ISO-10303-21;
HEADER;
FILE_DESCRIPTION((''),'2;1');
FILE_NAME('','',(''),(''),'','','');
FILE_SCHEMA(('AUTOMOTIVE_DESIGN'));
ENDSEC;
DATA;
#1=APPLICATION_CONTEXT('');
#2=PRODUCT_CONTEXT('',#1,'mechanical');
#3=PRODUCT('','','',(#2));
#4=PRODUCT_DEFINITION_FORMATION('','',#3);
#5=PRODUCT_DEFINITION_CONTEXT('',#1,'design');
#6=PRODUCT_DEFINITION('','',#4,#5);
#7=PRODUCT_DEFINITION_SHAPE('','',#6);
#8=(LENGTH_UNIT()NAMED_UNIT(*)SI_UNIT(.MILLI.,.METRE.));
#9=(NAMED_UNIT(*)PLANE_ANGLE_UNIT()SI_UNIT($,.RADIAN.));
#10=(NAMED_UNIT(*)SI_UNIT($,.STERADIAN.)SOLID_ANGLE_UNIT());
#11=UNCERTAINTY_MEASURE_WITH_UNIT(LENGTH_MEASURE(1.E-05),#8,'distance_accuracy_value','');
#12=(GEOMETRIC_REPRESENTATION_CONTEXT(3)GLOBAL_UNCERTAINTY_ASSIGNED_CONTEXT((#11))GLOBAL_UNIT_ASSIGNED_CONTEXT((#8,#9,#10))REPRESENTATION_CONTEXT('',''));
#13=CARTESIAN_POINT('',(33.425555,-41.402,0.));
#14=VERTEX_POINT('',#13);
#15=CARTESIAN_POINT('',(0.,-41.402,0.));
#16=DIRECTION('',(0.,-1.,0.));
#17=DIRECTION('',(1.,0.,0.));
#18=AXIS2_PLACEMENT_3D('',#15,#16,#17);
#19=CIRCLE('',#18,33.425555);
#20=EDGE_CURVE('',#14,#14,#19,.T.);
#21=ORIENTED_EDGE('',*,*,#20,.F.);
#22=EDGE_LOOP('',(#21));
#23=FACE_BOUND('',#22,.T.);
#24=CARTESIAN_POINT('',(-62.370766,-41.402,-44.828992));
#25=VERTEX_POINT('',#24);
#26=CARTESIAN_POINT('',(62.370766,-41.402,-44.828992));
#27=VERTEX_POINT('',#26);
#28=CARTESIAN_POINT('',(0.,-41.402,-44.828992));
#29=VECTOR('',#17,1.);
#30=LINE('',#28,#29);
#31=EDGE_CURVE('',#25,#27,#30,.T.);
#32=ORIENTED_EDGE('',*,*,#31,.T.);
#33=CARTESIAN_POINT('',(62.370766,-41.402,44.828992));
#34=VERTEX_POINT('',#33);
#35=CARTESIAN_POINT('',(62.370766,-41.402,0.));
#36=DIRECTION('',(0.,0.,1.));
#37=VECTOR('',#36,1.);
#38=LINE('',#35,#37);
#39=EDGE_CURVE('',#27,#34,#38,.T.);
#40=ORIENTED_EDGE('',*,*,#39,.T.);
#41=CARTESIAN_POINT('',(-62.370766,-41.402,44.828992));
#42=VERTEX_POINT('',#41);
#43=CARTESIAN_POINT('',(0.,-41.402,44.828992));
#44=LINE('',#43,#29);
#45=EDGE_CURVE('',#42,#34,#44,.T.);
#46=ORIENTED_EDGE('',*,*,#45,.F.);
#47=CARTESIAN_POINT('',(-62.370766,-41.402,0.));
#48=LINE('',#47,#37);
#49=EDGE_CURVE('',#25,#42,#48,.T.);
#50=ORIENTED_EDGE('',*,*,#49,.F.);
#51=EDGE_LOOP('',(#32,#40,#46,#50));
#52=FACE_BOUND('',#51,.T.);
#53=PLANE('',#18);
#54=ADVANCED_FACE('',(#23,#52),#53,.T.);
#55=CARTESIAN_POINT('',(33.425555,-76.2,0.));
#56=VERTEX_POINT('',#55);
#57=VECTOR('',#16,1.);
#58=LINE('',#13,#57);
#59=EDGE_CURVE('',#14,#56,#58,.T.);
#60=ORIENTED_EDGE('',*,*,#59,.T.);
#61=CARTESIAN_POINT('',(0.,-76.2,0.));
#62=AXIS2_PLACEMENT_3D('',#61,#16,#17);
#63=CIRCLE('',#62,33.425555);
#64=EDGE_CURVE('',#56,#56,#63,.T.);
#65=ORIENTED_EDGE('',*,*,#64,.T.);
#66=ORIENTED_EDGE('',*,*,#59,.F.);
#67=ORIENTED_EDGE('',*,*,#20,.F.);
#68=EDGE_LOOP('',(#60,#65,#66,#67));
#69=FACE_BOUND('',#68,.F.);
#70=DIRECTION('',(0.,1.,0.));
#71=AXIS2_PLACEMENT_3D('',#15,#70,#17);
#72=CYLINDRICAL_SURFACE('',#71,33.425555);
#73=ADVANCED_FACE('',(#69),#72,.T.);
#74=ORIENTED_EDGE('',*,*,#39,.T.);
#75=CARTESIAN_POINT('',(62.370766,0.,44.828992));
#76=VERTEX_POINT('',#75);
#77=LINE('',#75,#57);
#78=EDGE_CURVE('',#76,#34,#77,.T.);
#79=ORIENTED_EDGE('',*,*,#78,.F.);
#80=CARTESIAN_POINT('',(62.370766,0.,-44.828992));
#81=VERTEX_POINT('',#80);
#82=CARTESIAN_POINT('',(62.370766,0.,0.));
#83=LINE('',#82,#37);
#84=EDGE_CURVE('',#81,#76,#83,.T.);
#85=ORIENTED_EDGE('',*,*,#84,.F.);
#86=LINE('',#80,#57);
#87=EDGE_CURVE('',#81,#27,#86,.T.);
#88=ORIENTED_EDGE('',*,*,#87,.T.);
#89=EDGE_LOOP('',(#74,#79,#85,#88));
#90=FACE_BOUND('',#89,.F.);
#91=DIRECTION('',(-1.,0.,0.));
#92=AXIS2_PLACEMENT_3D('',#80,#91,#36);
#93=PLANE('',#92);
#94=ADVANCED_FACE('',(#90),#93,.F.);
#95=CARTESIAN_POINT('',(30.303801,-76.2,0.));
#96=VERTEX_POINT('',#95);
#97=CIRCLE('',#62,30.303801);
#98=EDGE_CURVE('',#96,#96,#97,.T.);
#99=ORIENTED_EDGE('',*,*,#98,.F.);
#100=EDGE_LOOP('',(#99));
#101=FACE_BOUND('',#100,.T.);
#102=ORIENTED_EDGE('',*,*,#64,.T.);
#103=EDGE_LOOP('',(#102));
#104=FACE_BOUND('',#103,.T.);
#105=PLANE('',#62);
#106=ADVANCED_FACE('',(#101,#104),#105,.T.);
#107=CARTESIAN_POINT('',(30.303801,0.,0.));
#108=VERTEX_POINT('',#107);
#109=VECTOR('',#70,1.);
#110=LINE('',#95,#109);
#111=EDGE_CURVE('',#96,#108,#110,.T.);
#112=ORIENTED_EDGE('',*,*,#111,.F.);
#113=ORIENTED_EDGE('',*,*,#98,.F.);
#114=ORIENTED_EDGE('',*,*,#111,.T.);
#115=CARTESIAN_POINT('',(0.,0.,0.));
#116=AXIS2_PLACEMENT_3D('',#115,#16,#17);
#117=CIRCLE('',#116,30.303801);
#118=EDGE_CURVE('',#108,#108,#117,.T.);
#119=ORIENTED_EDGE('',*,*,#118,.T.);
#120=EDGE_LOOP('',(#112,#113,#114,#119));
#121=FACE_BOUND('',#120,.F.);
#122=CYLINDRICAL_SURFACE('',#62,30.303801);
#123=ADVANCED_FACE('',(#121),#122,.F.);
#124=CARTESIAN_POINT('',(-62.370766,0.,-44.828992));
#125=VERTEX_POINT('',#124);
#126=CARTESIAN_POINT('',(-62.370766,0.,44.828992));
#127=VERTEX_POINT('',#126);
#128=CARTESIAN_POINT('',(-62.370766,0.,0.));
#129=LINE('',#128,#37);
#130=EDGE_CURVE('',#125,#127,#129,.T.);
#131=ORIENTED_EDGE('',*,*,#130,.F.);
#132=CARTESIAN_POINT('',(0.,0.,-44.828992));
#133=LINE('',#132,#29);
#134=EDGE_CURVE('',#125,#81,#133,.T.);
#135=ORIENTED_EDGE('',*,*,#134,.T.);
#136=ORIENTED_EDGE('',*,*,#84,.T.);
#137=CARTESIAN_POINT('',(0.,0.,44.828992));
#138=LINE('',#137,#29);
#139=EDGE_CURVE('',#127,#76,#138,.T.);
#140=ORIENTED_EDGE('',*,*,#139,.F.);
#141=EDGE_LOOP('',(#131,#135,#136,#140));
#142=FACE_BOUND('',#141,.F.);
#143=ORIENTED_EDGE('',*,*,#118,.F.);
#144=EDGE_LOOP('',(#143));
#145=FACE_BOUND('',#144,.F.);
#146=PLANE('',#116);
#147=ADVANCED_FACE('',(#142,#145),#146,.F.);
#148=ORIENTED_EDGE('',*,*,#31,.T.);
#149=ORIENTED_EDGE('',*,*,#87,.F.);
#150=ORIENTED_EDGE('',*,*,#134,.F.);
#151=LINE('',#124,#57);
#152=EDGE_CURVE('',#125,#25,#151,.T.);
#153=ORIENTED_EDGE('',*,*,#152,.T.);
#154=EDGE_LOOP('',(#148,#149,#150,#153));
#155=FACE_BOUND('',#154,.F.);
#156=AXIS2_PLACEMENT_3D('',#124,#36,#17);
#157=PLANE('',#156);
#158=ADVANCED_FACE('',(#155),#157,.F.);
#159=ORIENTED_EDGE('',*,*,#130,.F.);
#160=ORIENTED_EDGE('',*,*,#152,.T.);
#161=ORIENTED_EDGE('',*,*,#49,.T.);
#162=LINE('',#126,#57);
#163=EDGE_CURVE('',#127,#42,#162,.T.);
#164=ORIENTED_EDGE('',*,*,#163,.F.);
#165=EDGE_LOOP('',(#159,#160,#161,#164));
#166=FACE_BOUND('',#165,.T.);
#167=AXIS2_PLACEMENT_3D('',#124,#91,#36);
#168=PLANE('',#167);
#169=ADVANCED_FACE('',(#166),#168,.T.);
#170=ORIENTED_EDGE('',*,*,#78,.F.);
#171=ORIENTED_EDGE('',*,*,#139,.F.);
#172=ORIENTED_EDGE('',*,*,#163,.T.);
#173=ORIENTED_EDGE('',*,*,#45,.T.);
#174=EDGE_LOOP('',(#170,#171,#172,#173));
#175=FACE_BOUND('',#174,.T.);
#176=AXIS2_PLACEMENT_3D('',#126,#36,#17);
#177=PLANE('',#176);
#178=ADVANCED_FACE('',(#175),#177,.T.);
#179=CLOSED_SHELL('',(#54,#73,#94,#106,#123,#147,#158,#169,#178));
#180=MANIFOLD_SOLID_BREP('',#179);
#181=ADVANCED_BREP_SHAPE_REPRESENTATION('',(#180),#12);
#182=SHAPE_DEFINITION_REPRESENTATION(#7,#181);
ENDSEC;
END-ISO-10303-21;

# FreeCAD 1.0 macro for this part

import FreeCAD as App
import Part
import Sketcher
from FreeCAD import Vector

doc = App.newDocument("Part")
params = doc.addObject("Spreadsheet::Sheet", "Params")
for row, (alias, value) in enumerate([
    ("pad1_length", "1.63 in"),
    ("pad2_length", "1.37 in"),
    ("pocket1_length", "3.79 in"),
], start=1):
    params.set(f"A{row}", alias)
    params.set(f"B{row}", "=" + value)
    params.setAlias(f"B{row}", alias)

body = doc.addObject("PartDesign::Body", "Body")

# Sketch on XZ plane
sketch1 = doc.addObject("Sketcher::SketchObject", "Sketch")
body.addObject(sketch1)
sketch1.AttachmentSupport = (doc.XZ_Plane, [""])
sketch1.MapMode = "FlatFace"
sketch1.addGeometry(Part.LineSegment(Vector(-62, 45, 0), Vector(-62, -45, 0)), False)
sketch1.addGeometry(Part.LineSegment(Vector(-62, -45, 0), Vector(62, -45, 0)), False)
sketch1.addGeometry(Part.LineSegment(Vector(62, -45, 0), Vector(62, 45, 0)), False)
sketch1.addGeometry(Part.LineSegment(Vector(62, 45, 0), Vector(-62, 45, 0)), False)
sketch1.addConstraint(Sketcher.Constraint("Coincident", 0, 2, 1, 1))
sketch1.addConstraint(Sketcher.Constraint("Coincident", 1, 2, 2, 1))
sketch1.addConstraint(Sketcher.Constraint("Coincident", 2, 2, 3, 1))
sketch1.addConstraint(Sketcher.Constraint("Coincident", 3, 2, 0, 1))
sketch1.addConstraint(Sketcher.Constraint("Vertical", 0))
sketch1.addConstraint(Sketcher.Constraint("Horizontal", 1))
sketch1.addConstraint(Sketcher.Constraint("Vertical", 2))
sketch1.addConstraint(Sketcher.Constraint("Horizontal", 3))
sketch1.addConstraint(Sketcher.Constraint("Symmetric", 0, 2, 2, 2, -1, 1))
sketch1.addConstraint(Sketcher.Constraint("DistanceX", 1, 1, 1, 2, 124.741532))
sketch1.addConstraint(Sketcher.Constraint("DistanceY", 0, 2, 0, 1, 89.657984))
pad1 = doc.addObject("PartDesign::Pad", "Pad")
body.addObject(pad1)
pad1.Profile = sketch1
pad1.setExpression("Length", "Params.pad1_length")

# Sketch on XZ plane
sketch2 = doc.addObject("Sketcher::SketchObject", "Sketch001")
body.addObject(sketch2)
sketch2.AttachmentSupport = (doc.XZ_Plane, [""])
sketch2.MapMode = "FlatFace"
sketch2.AttachmentOffset = App.Placement(Vector(0, 0, 1.63 * 25.4), App.Rotation())
sketch2.addGeometry(Part.Circle(Vector(0, 0, 0), Vector(0, 0, 1), 33), False)
sketch2.addConstraint(Sketcher.Constraint("Coincident", 0, 3, -1, 1))
sketch2.addConstraint(Sketcher.Constraint("Diameter", 0, 66.85111))
pad2 = doc.addObject("PartDesign::Pad", "Pad001")
body.addObject(pad2)
pad2.Profile = sketch2
pad2.setExpression("Length", "Params.pad2_length")

# Sketch on XZ plane
sketch3 = doc.addObject("Sketcher::SketchObject", "Sketch002")
body.addObject(sketch3)
sketch3.AttachmentSupport = (doc.XZ_Plane, [""])
sketch3.MapMode = "FlatFace"
sketch3.AttachmentOffset = App.Placement(Vector(0, 0, 3 * 25.4), App.Rotation())
sketch3.addGeometry(Part.Circle(Vector(0, 0, 0), Vector(0, 0, 1), 30), False)
sketch3.addConstraint(Sketcher.Constraint("Coincident", 0, 3, -1, 1))
sketch3.addConstraint(Sketcher.Constraint("Diameter", 0, 60.607602))
pocket1 = doc.addObject("PartDesign::Pocket", "Pocket")
body.addObject(pocket1)
pocket1.Profile = sketch3
pocket1.setExpression("Length", "Params.pocket1_length")

doc.recompute()
